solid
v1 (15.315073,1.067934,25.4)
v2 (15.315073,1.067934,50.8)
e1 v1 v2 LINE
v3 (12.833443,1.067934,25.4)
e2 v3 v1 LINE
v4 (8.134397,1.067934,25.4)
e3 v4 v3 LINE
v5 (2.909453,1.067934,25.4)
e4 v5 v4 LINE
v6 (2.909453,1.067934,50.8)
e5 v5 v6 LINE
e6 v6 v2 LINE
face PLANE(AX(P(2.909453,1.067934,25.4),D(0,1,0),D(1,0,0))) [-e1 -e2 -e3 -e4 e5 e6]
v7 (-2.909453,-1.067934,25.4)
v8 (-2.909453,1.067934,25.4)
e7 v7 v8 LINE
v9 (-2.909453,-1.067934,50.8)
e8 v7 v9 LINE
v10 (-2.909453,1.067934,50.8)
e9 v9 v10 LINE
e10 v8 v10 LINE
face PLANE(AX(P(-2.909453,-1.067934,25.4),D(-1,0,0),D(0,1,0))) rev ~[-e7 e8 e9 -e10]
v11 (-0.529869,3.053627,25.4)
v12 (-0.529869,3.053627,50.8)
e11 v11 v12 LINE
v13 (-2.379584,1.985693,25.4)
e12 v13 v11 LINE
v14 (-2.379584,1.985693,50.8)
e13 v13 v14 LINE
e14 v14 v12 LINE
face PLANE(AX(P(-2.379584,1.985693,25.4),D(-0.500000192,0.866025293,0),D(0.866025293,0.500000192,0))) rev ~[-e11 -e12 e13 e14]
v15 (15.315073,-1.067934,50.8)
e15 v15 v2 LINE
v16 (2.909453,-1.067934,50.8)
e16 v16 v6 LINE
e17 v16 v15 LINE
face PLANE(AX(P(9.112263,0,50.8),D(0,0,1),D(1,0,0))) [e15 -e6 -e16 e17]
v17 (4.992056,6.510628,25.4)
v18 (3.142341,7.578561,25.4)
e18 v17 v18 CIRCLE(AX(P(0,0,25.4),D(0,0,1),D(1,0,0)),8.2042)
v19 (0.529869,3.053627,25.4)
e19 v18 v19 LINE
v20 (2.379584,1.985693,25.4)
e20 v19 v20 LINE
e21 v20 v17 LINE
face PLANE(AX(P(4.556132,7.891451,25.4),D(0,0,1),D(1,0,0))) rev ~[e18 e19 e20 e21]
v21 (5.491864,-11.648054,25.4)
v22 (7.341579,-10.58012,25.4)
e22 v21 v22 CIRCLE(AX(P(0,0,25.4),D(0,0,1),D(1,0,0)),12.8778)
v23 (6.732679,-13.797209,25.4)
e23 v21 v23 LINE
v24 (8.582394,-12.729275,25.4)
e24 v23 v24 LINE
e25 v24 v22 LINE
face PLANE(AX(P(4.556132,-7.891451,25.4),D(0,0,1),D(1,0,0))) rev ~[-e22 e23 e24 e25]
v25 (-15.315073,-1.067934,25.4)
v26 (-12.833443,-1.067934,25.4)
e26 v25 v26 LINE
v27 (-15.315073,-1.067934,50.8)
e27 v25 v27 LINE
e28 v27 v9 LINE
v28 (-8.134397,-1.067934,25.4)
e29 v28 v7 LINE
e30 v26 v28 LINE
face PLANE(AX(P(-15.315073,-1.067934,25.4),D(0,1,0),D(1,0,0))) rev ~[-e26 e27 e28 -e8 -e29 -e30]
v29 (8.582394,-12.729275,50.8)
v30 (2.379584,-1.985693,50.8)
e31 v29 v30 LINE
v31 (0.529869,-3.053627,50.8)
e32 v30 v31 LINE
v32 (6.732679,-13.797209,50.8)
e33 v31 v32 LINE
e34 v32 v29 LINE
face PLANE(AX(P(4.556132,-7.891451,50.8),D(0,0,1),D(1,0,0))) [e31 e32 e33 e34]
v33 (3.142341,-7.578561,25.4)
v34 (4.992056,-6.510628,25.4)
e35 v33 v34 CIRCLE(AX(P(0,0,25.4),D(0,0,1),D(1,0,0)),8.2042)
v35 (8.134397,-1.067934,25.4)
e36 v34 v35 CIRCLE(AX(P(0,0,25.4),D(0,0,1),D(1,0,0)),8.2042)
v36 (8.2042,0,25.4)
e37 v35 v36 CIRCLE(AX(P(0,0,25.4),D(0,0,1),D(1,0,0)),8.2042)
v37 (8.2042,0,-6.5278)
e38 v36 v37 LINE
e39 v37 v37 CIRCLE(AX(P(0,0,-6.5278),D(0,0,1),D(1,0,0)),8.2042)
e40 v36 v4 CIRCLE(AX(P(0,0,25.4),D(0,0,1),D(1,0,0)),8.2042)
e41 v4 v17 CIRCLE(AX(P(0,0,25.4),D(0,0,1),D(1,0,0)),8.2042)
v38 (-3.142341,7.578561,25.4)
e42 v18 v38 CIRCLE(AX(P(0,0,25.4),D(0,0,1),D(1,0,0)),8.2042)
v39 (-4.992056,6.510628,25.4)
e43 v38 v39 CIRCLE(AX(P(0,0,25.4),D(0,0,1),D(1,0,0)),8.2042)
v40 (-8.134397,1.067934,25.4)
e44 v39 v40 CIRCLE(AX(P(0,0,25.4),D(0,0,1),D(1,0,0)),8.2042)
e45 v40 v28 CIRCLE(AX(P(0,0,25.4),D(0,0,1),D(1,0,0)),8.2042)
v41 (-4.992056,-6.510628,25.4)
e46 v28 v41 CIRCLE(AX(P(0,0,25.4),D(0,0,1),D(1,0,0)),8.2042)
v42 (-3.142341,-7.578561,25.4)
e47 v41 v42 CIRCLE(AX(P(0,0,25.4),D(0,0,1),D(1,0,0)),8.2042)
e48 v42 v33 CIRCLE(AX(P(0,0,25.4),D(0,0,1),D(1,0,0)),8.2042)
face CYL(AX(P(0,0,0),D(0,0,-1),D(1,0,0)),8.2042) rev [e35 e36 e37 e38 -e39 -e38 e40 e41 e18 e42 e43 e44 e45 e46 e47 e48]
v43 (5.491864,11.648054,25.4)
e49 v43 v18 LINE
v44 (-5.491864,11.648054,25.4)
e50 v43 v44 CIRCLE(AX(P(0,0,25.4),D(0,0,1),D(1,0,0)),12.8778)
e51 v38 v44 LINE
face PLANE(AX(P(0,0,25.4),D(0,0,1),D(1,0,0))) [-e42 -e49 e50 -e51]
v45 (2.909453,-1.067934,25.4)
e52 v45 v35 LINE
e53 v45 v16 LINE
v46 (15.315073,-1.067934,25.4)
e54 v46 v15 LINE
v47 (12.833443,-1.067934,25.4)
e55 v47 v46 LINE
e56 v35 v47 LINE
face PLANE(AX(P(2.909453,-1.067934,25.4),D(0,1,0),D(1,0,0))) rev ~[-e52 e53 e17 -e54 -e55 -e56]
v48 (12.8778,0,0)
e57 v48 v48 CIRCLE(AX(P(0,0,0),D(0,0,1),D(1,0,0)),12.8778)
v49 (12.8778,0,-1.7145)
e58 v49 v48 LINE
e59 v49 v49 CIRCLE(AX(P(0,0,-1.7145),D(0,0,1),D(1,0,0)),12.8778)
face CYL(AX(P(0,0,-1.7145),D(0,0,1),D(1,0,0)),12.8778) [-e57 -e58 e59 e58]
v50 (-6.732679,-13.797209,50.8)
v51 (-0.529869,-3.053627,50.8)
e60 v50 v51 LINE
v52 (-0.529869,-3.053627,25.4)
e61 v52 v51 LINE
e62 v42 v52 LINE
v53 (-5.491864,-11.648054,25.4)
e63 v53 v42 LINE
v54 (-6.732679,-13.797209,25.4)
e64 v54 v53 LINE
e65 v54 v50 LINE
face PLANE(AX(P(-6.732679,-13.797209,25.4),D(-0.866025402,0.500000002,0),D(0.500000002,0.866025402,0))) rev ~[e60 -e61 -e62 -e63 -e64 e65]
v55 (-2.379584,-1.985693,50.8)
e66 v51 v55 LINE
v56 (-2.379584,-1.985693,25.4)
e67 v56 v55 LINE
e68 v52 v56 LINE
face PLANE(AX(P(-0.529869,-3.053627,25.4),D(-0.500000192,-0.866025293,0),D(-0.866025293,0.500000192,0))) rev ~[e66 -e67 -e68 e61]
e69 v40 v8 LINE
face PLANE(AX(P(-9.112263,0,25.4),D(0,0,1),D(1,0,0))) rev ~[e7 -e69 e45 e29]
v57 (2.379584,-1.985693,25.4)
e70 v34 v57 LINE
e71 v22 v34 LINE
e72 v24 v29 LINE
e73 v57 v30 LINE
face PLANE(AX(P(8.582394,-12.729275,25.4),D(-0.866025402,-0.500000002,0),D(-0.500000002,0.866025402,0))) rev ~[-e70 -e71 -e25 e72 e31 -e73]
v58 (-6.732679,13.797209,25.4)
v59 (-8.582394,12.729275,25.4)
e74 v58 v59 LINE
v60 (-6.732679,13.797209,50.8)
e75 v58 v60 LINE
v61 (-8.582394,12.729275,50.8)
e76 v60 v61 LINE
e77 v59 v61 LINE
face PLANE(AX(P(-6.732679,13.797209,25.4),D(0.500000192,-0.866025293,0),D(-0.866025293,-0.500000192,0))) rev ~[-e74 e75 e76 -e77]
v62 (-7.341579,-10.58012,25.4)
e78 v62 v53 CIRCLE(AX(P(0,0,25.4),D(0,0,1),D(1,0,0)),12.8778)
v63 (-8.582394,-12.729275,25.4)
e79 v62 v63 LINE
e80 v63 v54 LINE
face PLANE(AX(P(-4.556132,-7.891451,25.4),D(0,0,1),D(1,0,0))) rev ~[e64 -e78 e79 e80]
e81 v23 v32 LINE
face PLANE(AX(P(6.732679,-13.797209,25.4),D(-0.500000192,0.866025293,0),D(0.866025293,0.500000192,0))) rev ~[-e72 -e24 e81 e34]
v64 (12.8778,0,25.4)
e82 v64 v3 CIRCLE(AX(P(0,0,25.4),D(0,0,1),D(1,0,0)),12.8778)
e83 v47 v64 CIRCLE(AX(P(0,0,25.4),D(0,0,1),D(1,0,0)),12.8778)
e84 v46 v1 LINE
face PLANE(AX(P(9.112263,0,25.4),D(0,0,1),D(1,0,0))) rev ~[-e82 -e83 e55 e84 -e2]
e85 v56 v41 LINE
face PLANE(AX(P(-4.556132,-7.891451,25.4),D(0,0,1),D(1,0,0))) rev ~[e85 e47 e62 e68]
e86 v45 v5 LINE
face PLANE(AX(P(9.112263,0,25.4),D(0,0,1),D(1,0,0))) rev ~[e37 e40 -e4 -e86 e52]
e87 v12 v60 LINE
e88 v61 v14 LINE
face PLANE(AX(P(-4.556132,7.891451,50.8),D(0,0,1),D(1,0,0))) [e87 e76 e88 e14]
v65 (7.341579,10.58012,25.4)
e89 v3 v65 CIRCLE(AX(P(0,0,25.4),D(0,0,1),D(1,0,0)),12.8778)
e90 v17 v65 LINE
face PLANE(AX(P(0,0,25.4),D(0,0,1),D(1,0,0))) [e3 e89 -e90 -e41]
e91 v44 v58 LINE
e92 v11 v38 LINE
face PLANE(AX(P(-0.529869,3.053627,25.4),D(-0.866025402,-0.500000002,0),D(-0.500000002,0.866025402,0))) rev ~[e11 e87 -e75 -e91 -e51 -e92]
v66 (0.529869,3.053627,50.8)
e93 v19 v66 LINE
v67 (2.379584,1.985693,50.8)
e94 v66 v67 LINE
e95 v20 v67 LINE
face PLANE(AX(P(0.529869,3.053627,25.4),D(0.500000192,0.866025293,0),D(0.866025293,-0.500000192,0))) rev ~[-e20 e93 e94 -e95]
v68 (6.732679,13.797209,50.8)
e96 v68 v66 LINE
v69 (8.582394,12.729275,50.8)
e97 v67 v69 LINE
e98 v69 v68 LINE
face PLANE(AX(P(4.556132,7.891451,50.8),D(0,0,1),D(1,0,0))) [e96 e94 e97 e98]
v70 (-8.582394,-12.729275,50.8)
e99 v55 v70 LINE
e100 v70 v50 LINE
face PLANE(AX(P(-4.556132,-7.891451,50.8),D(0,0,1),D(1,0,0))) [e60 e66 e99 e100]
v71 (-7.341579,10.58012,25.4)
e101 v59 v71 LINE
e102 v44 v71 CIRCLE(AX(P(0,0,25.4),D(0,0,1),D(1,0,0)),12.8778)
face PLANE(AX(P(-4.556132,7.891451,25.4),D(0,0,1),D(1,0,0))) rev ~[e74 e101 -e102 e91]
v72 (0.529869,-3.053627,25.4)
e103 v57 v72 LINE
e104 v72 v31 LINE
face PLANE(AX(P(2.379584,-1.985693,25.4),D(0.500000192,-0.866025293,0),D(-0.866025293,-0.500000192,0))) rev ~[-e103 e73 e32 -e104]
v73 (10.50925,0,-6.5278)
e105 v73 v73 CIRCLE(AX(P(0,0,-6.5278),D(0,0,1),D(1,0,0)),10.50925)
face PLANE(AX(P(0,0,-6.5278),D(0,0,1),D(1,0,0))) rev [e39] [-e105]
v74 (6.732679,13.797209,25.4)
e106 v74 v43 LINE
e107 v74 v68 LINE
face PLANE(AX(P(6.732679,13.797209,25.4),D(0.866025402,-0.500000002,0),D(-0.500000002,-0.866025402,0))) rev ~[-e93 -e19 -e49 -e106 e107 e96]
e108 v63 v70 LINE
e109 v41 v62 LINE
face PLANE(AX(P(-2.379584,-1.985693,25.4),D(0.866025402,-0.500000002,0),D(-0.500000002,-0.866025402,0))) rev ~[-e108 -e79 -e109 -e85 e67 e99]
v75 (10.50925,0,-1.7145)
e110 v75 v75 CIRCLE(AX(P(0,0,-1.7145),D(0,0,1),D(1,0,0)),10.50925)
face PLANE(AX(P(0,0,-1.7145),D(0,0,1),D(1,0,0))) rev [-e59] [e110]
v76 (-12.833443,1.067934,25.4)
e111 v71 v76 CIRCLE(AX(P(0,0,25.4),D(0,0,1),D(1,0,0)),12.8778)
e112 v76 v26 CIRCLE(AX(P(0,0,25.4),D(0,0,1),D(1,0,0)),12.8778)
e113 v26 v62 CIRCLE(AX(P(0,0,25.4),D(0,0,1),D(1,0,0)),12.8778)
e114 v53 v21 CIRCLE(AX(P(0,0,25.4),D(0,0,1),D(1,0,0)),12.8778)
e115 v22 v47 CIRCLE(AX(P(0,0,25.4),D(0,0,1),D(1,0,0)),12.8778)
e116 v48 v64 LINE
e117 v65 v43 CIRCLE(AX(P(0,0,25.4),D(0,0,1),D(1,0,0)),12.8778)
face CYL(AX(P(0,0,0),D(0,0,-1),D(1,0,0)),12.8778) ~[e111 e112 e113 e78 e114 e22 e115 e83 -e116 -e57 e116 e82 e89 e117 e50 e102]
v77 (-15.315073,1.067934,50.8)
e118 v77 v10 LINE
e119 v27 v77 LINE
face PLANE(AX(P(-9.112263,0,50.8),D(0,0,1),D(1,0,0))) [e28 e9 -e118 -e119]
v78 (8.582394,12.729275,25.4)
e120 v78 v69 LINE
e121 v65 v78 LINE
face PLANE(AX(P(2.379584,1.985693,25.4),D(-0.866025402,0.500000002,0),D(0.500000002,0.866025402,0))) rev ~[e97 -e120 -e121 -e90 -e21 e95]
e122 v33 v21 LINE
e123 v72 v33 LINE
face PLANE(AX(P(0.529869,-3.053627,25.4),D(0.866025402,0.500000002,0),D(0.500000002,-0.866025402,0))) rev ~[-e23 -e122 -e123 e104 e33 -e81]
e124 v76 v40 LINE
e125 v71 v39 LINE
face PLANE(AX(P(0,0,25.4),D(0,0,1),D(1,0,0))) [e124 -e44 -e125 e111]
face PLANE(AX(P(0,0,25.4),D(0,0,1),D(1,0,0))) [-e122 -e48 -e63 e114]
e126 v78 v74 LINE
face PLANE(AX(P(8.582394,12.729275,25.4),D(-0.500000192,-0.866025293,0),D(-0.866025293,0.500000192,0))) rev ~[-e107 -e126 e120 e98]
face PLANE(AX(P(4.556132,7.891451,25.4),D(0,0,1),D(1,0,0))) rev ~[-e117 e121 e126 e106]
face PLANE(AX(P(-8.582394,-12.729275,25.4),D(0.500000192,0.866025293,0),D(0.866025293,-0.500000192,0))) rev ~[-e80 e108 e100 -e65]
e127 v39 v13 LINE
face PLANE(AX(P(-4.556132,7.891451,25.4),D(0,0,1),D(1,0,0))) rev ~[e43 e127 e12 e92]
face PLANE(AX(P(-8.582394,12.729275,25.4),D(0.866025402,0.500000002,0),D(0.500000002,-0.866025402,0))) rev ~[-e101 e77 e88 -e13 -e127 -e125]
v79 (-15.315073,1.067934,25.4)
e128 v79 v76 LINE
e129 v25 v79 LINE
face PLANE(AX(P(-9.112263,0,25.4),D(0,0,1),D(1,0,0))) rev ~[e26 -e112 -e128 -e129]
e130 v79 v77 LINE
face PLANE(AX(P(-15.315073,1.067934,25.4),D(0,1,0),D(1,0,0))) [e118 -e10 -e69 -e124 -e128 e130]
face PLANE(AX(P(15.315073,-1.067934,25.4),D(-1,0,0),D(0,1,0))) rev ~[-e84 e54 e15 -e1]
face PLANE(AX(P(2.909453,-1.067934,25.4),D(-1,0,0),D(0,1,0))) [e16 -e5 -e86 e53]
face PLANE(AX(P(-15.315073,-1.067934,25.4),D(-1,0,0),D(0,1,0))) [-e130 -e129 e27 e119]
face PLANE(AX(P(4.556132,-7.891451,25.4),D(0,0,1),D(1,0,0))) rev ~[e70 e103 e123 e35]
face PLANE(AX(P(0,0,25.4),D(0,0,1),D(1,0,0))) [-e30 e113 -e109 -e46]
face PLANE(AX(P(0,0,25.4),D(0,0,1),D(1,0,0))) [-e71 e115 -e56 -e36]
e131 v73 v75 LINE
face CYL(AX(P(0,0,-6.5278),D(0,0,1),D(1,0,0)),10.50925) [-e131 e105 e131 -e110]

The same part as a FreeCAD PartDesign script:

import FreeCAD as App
import Part
import Sketcher
from FreeCAD import Vector
Q = App.Units.Quantity

doc = App.newDocument("Part")
body = doc.addObject("PartDesign::Body", "Body")

# Sketch on XZ plane
sketch1 = body.newObject("Sketcher::SketchObject", "Sketch")
sketch1.AttachmentSupport = (doc.getObject("XZ_Plane"), [""])
sketch1.MapMode = "FlatFace"
sketch1.addGeometry([
    Part.LineSegment(Vector(12.8778, 0, 0), Vector(8.2042, 0, 0)),  # 0
    Part.LineSegment(Vector(8.2042, 0, 0), Vector(8.2042, -6.5278, 0)),  # 1
    Part.LineSegment(Vector(8.2042, -6.5278, 0), Vector(10.50925, -6.5278, 0)),  # 2
    Part.LineSegment(Vector(10.50925, -6.5278, 0), Vector(10.50925, -1.7145, 0)),  # 3
    Part.LineSegment(Vector(10.50925, -1.7145, 0), Vector(12.8778, -1.7145, 0)),  # 4
    Part.LineSegment(Vector(12.8778, -1.7145, 0), Vector(12.8778, 0, 0)),  # 5
], False)
sketch1.addConstraint([
    Sketcher.Constraint("Coincident", 0, 2, 1, 1),
    Sketcher.Constraint("Coincident", 1, 2, 2, 1),
    Sketcher.Constraint("Coincident", 2, 2, 3, 1),
    Sketcher.Constraint("Coincident", 3, 2, 4, 1),
    Sketcher.Constraint("Coincident", 4, 2, 5, 1),
    Sketcher.Constraint("Coincident", 5, 2, 0, 1),
    Sketcher.Constraint("Horizontal", 0),
    Sketcher.Constraint("Vertical", 1),
    Sketcher.Constraint("Horizontal", 2),
    Sketcher.Constraint("Vertical", 3),
    Sketcher.Constraint("Horizontal", 4),
    Sketcher.Constraint("Vertical", 5),
    Sketcher.Constraint("PointOnObject", 0, 2, -1),
    Sketcher.Constraint("DistanceX", 0, 2, 0, 1, Q("0.184 in")),
    Sketcher.Constraint("DistanceY", 1, 2, 1, 1, Q("0.257 in")),
    Sketcher.Constraint("DistanceY", 3, 1, 3, 2, Q("0.1895 in")),
    Sketcher.Constraint("DistanceX", -1, 1, 0, 2, Q("0.323 in")),
    Sketcher.Constraint("DistanceX", 2, 1, 2, 2, 2.30505),
])
revolution = body.newObject("PartDesign::Revolution", "Revolution")
revolution.Profile = sketch1
revolution.ReferenceAxis = (sketch1, ["V_Axis"])
revolution.Angle = 360

# Sketch on XY plane
sketch2 = body.newObject("Sketcher::SketchObject", "Sketch001")
sketch2.AttachmentSupport = (doc.getObject("XY_Plane"), [""])
sketch2.MapMode = "FlatFace"
sketch2.addGeometry([
    Part.Circle(Vector(0, 0, 0), Vector(0, 0, 1), 12.8778),
    Part.Circle(Vector(0, 0, 0), Vector(0, 0, 1), 8.2042),
], False)
sketch2.addConstraint([
    Sketcher.Constraint("Coincident", 0, 3, -1, 1),
    Sketcher.Constraint("Coincident", 1, 3, -1, 1),
    Sketcher.Constraint("Diameter", 0, Q("1.014 in")),
    Sketcher.Constraint("Diameter", 1, Q("0.646 in")),
])
pad1 = body.newObject("PartDesign::Pad", "Pad")
pad1.Profile = sketch2
pad1.Length = Q("1 in")

# Sketch on XY plane
sketch3 = body.newObject("Sketcher::SketchObject", "Sketch002")
sketch3.AttachmentSupport = (doc.getObject("XY_Plane"), [""])
sketch3.MapMode = "FlatFace"
sketch3.AttachmentOffset = App.Placement(Vector(0, 0, 1 * 25.4), App.Rotation())
sketch3.addGeometry([
    Part.LineSegment(Vector(2.909453, 1.067934, 0), Vector(2.909453, -1.067934, 0)),  # 0
    Part.LineSegment(Vector(2.909453, -1.067934, 0), Vector(15.315073, -1.067934, 0)),  # 1
    Part.LineSegment(Vector(15.315073, -1.067934, 0), Vector(15.315073, 1.067934, 0)),  # 2
    Part.LineSegment(Vector(15.315073, 1.067934, 0), Vector(2.909453, 1.067934, 0)),  # 3
    Part.LineSegment(Vector(6.732679, 13.797209, 0), Vector(0.529869, 3.053627, 0)),  # 4
    Part.LineSegment(Vector(0.529869, 3.053627, 0), Vector(2.379584, 1.985693, 0)),  # 5
    Part.LineSegment(Vector(2.379584, 1.985693, 0), Vector(8.582394, 12.729275, 0)),  # 6
    Part.LineSegment(Vector(8.582394, 12.729275, 0), Vector(6.732679, 13.797209, 0)),  # 7
    Part.LineSegment(Vector(-8.582394, 12.729275, 0), Vector(-2.379584, 1.985693, 0)),  # 8
    Part.LineSegment(Vector(-2.379584, 1.985693, 0), Vector(-0.529869, 3.053627, 0)),  # 9
    Part.LineSegment(Vector(-0.529869, 3.053627, 0), Vector(-6.732679, 13.797209, 0)),  # 10
    Part.LineSegment(Vector(-6.732679, 13.797209, 0), Vector(-8.582394, 12.729275, 0)),  # 11
    Part.LineSegment(Vector(-15.315073, 1.067934, 0), Vector(-15.315073, -1.067934, 0)),  # 12
    Part.LineSegment(Vector(-15.315073, -1.067934, 0), Vector(-2.909453, -1.067934, 0)),  # 13
    Part.LineSegment(Vector(-2.909453, -1.067934, 0), Vector(-2.909453, 1.067934, 0)),  # 14
    Part.LineSegment(Vector(-2.909453, 1.067934, 0), Vector(-15.315073, 1.067934, 0)),  # 15
    Part.LineSegment(Vector(-6.732679, -13.797209, 0), Vector(-0.529869, -3.053627, 0)),  # 16
    Part.LineSegment(Vector(-0.529869, -3.053627, 0), Vector(-2.379584, -1.985693, 0)),  # 17
    Part.LineSegment(Vector(-2.379584, -1.985693, 0), Vector(-8.582394, -12.729275, 0)),  # 18
    Part.LineSegment(Vector(-8.582394, -12.729275, 0), Vector(-6.732679, -13.797209, 0)),  # 19
    Part.LineSegment(Vector(8.582394, -12.729275, 0), Vector(2.379584, -1.985693, 0)),  # 20
    Part.LineSegment(Vector(2.379584, -1.985693, 0), Vector(0.529869, -3.053627, 0)),  # 21
    Part.LineSegment(Vector(0.529869, -3.053627, 0), Vector(6.732679, -13.797209, 0)),  # 22
    Part.LineSegment(Vector(6.732679, -13.797209, 0), Vector(8.582394, -12.729275, 0)),  # 23
], False)
sketch3.addConstraint([
    Sketcher.Constraint("Coincident", 0, 2, 1, 1),
    Sketcher.Constraint("Coincident", 1, 2, 2, 1),
    Sketcher.Constraint("Coincident", 2, 2, 3, 1),
    Sketcher.Constraint("Coincident", 3, 2, 0, 1),
    Sketcher.Constraint("Coincident", 4, 2, 5, 1),
    Sketcher.Constraint("Coincident", 5, 2, 6, 1),
    Sketcher.Constraint("Coincident", 6, 2, 7, 1),
    Sketcher.Constraint("Coincident", 7, 2, 4, 1),
    Sketcher.Constraint("Coincident", 8, 2, 9, 1),
    Sketcher.Constraint("Coincident", 9, 2, 10, 1),
    Sketcher.Constraint("Coincident", 10, 2, 11, 1),
    Sketcher.Constraint("Coincident", 11, 2, 8, 1),
    Sketcher.Constraint("Coincident", 12, 2, 13, 1),
    Sketcher.Constraint("Coincident", 13, 2, 14, 1),
    Sketcher.Constraint("Coincident", 14, 2, 15, 1),
    Sketcher.Constraint("Coincident", 15, 2, 12, 1),
    Sketcher.Constraint("Coincident", 16, 2, 17, 1),
    Sketcher.Constraint("Coincident", 17, 2, 18, 1),
    Sketcher.Constraint("Coincident", 18, 2, 19, 1),
    Sketcher.Constraint("Coincident", 19, 2, 16, 1),
    Sketcher.Constraint("Coincident", 20, 2, 21, 1),
    Sketcher.Constraint("Coincident", 21, 2, 22, 1),
    Sketcher.Constraint("Coincident", 22, 2, 23, 1),
    Sketcher.Constraint("Coincident", 23, 2, 20, 1),
    Sketcher.Constraint("Vertical", 0),
    Sketcher.Constraint("Horizontal", 1),
    Sketcher.Constraint("Vertical", 2),
    Sketcher.Constraint("Horizontal", 3),
    Sketcher.Constraint("Vertical", 12),
    Sketcher.Constraint("Horizontal", 13),
    Sketcher.Constraint("Vertical", 14),
    Sketcher.Constraint("Horizontal", 15),
    Sketcher.Constraint("Symmetric", 2, 2, 12, 2, -1, 1),
    Sketcher.Constraint("Symmetric", 0, 2, 14, 2, -1, 1),
    Sketcher.Constraint("Symmetric", 4, 2, 16, 2, -1, 1),
    Sketcher.Constraint("Symmetric", 5, 2, 17, 2, -1, 1),
    Sketcher.Constraint("Symmetric", 6, 2, 18, 2, -1, 1),
    Sketcher.Constraint("Symmetric", 7, 2, 19, 2, -1, 1),
    Sketcher.Constraint("Symmetric", 8, 2, 20, 2, -1, 1),
    Sketcher.Constraint("Symmetric", 9, 2, 21, 2, -1, 1),
    Sketcher.Constraint("Symmetric", 10, 2, 22, 2, -1, 1),
    Sketcher.Constraint("Symmetric", 11, 2, 23, 2, -1, 1),
    Sketcher.Constraint("Symmetric", 5, 2, 8, 2, -2),
    Sketcher.Constraint("Symmetric", 4, 2, 9, 2, -2),
    Sketcher.Constraint("Symmetric", 7, 2, 10, 2, -2),
    Sketcher.Constraint("Symmetric", 6, 2, 11, 2, -2),
    Sketcher.Constraint("Perpendicular", 4, 5),
    Sketcher.Constraint("Perpendicular", 5, 6),
    Sketcher.Constraint("Perpendicular", 6, 7),
    Sketcher.Constraint("Horizontal", 1, 2, 12, 2),
    Sketcher.Constraint("Angle", 4, Q("-120 deg")),
    Sketcher.Constraint("DistanceX", 1, 1, 1, 2, 12.40562),
    Sketcher.Constraint("Distance", 4, 12.40562),
    Sketcher.Constraint("DistanceY", 0, 2, 0, 1, 2.135868),
    Sketcher.Constraint("DistanceX", -1, 1, 4, 2, 0.529869),
    Sketcher.Constraint("DistanceY", -1, 1, 7, 2, 13.797209),
    Sketcher.Constraint("DistanceX", 5, 2, 3, 2, 0.529869),
    Sketcher.Constraint("DistanceY", 3, 2, 5, 2, 0.917759),
])
pad2 = body.newObject("PartDesign::Pad", "Pad001")
pad2.Profile = sketch3
pad2.Length = Q("1 in")

doc.recompute()
